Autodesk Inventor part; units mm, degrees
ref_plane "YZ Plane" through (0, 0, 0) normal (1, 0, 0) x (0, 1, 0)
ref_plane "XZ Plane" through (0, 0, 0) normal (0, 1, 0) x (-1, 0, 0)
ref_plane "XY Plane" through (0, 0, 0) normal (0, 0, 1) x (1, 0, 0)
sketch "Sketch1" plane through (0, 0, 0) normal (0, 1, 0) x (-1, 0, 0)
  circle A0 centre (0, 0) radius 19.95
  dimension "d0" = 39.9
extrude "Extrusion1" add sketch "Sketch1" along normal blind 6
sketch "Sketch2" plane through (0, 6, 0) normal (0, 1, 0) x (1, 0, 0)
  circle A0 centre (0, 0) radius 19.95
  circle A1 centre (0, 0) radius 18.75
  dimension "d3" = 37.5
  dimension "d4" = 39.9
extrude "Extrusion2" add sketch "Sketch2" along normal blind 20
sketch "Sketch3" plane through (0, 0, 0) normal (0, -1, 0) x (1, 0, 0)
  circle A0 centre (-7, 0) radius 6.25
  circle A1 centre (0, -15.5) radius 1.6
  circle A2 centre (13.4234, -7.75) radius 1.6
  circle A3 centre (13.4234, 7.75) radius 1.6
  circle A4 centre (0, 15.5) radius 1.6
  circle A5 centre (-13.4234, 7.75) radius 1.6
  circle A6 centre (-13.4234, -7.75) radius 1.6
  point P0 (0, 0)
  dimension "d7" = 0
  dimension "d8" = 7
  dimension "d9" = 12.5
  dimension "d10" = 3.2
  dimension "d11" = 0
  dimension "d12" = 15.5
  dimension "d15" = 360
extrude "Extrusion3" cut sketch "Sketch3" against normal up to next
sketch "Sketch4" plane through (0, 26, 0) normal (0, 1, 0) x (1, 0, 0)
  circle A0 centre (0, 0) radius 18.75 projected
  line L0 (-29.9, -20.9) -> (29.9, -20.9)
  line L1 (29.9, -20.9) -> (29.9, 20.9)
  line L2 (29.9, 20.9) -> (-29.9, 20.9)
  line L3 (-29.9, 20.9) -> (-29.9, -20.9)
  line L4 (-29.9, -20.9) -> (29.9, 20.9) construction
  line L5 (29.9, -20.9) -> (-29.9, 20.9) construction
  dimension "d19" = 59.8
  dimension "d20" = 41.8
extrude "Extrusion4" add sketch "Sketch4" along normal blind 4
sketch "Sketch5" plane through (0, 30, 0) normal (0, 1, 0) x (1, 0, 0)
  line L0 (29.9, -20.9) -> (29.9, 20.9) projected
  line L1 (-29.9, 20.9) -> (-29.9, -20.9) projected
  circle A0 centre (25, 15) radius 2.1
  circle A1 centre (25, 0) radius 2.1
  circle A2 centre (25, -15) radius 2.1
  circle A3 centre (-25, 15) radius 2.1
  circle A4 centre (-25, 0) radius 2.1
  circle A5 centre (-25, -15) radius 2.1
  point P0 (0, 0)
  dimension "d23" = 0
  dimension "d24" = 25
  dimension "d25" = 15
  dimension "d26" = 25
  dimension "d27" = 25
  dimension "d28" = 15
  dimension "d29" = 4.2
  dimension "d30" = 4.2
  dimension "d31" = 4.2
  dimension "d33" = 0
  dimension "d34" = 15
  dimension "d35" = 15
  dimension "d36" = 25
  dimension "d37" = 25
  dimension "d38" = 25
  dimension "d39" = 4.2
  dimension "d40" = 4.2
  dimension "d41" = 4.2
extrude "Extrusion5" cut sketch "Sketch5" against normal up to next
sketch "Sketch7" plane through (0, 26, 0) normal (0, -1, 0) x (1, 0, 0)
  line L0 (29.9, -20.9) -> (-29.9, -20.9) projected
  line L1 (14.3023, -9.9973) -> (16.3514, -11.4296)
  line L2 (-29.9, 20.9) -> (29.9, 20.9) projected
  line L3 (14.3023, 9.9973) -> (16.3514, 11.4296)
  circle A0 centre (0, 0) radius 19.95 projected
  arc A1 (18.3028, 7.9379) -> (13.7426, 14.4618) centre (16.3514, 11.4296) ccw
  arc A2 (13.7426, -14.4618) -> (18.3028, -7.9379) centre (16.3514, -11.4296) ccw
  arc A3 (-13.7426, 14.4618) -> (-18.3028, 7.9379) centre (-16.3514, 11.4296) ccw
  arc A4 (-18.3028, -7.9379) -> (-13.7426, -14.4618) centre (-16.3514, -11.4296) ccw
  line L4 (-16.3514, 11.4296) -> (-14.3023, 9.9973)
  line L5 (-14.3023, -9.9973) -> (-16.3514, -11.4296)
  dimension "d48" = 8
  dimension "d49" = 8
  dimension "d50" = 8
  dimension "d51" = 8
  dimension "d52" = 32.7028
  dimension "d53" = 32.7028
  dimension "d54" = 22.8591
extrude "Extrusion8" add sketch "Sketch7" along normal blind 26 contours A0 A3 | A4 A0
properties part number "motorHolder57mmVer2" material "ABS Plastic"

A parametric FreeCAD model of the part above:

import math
import FreeCAD as App
import Part
import Sketcher

doc = App.newDocument("Part")
params = doc.addObject("Spreadsheet::Sheet", "Params")
for row, (alias, value) in enumerate([
    ("sketch1_diameter", "39.9 mm"),
    ("pad1_length", "6 mm"),
    ("sketch2_diameter", "39.9 mm"),
    ("sketch2_diameter2", "37.5 mm"),
    ("pad2_length", "20 mm"),
    ("sketch3_diameter", "12.5 mm"),
    ("sketch3_diameter2", "3.2 mm"),
    ("sketch4_width", "59.8 mm"),
    ("sketch4_height", "41.8 mm"),
    ("sketch4_diameter", "37.5 mm"),
    ("pad3_length", "4 mm"),
    ("sketch5_diameter", "4.2 mm"),
    ("sketch6_radius", "4 mm"),
    ("sketch6_radius2", "19.95 mm"),
    ("pad4_length", "26 mm"),
], start=1):
    params.set(f"A{row}", alias)
    params.set(f"B{row}", "=" + value)
    params.setAlias(f"B{row}", alias)

body = doc.addObject("PartDesign::Body", "Body")

sketch1 = body.newObject("Sketcher::SketchObject", "Sketch")
sketch1.AttachmentSupport = (doc.getObject("XZ_Plane"), [""])
sketch1.MapMode = "FlatFace"
sketch1.addGeometry(Part.Circle(App.Vector(0, 0, 0), App.Vector(0, 0, 1), 20), False)
sketch1.addConstraint([
    Sketcher.Constraint("Coincident", 0, 3, -1, 1),
    Sketcher.Constraint("Diameter", 0, 39.9),
])
sketch1.setExpression("Constraints[1]", "Params.sketch1_diameter")
pad1 = body.newObject("PartDesign::Pad", "Pad")
pad1.Profile = sketch1
pad1.setExpression("Length", "Params.pad1_length")
pad1.Reversed = True

sketch2 = body.newObject("Sketcher::SketchObject", "Sketch001")
sketch2.AttachmentSupport = (doc.getObject("XZ_Plane"), [""])
sketch2.MapMode = "FlatFace"
sketch2.AttachmentOffset = App.Placement(App.Vector(0, 0, -6), App.Rotation())
sketch2.addGeometry([
    Part.Circle(App.Vector(0, 0, 0), App.Vector(0, 0, 1), 20),
    Part.Circle(App.Vector(0, 0, 0), App.Vector(0, 0, 1), 19),
], False)
sketch2.addConstraint([
    Sketcher.Constraint("Coincident", 0, 3, -1, 1),
    Sketcher.Constraint("Coincident", 1, 3, -1, 1),
    Sketcher.Constraint("Diameter", 0, 39.9),
    Sketcher.Constraint("Diameter", 1, 37.5),
])
sketch2.setExpression("Constraints[2]", "Params.sketch2_diameter")
sketch2.setExpression("Constraints[3]", "Params.sketch2_diameter2")
pad2 = body.newObject("PartDesign::Pad", "Pad001")
pad2.Profile = sketch2
pad2.setExpression("Length", "Params.pad2_length")
pad2.Reversed = True

sketch3 = body.newObject("Sketcher::SketchObject", "Sketch002")
sketch3.AttachmentSupport = (doc.getObject("XZ_Plane"), [""])
sketch3.MapMode = "FlatFace"
sketch3.addGeometry([
    Part.Circle(App.Vector(-7, 0, 0), App.Vector(0, 0, 1), 6.2),
    Part.Circle(App.Vector(0, -15.5, 0), App.Vector(0, 0, 1), 1.6),
    Part.Circle(App.Vector(13.4, -7.8, 0), App.Vector(0, 0, 1), 1.6),
    Part.Circle(App.Vector(13.4, 7.8, 0), App.Vector(0, 0, 1), 1.6),
    Part.Circle(App.Vector(0, 15.5, 0), App.Vector(0, 0, 1), 1.6),
    Part.Circle(App.Vector(-13.4, 7.8, 0), App.Vector(0, 0, 1), 1.6),
    Part.Circle(App.Vector(-13.4, -7.8, 0), App.Vector(0, 0, 1), 1.6),
], False)
sketch3.addConstraint([
    Sketcher.Constraint("Equal", 1, 2),
    Sketcher.Constraint("Equal", 2, 3),
    Sketcher.Constraint("Equal", 3, 4),
    Sketcher.Constraint("Equal", 4, 5),
    Sketcher.Constraint("Equal", 5, 6),
    Sketcher.Constraint("Symmetric", 1, 3, 4, 3, -1, 1),
    Sketcher.Constraint("Symmetric", 2, 3, 5, 3, -1, 1),
    Sketcher.Constraint("Symmetric", 3, 3, 6, 3, -1, 1),
    Sketcher.Constraint("Symmetric", 3, 3, 5, 3, -2),
    Sketcher.Constraint("PointOnObject", 0, 3, -1),
    Sketcher.Constraint("PointOnObject", 1, 3, -2),
    Sketcher.Constraint("Diameter", 0, 12.5),
    Sketcher.Constraint("Diameter", 1, 3.2),
    Sketcher.Constraint("DistanceX", 0, 3, -1, 1, 7.0),
    Sketcher.Constraint("DistanceY", 1, 3, -1, 1, 15.5),
    Sketcher.Constraint("DistanceY", 2, 3, 3, 3, 15.5),
    Sketcher.Constraint("DistanceX", -1, 1, 2, 3, 13.4234),
])
sketch3.setExpression("Constraints[11]", "Params.sketch3_diameter")
sketch3.setExpression("Constraints[12]", "Params.sketch3_diameter2")
pocket1 = body.newObject("PartDesign::Pocket", "Pocket")
pocket1.Profile = sketch3
pocket1.Type = "UpToFirst"

sketch4 = body.newObject("Sketcher::SketchObject", "Sketch003")
sketch4.AttachmentSupport = (doc.getObject("XZ_Plane"), [""])
sketch4.MapMode = "FlatFace"
sketch4.AttachmentOffset = App.Placement(App.Vector(0, 0, -26), App.Rotation())
sketch4.addGeometry([
    Part.LineSegment(App.Vector(-30, -21, 0), App.Vector(-30, 21, 0)),
    Part.LineSegment(App.Vector(-30, 21, 0), App.Vector(30, 21, 0)),
    Part.LineSegment(App.Vector(30, 21, 0), App.Vector(30, -21, 0)),
    Part.LineSegment(App.Vector(30, -21, 0), App.Vector(-30, -21, 0)),
    Part.Circle(App.Vector(0, 0, 0), App.Vector(0, 0, 1), 19),
], False)
sketch4.addConstraint([
    Sketcher.Constraint("Coincident", 0, 2, 1, 1),
    Sketcher.Constraint("Coincident", 1, 2, 2, 1),
    Sketcher.Constraint("Coincident", 2, 2, 3, 1),
    Sketcher.Constraint("Coincident", 3, 2, 0, 1),
    Sketcher.Constraint("Vertical", 0),
    Sketcher.Constraint("Horizontal", 1),
    Sketcher.Constraint("Vertical", 2),
    Sketcher.Constraint("Horizontal", 3),
    Sketcher.Constraint("Coincident", 4, 3, -1, 1),
    Sketcher.Constraint("Symmetric", 0, 2, 2, 2, -1, 1),
    Sketcher.Constraint("DistanceX", 1, 1, 1, 2, 59.8),
    Sketcher.Constraint("DistanceY", 0, 1, 0, 2, 41.8),
    Sketcher.Constraint("Diameter", 4, 37.5),
])
sketch4.setExpression("Constraints[10]", "Params.sketch4_width")
sketch4.setExpression("Constraints[11]", "Params.sketch4_height")
sketch4.setExpression("Constraints[12]", "Params.sketch4_diameter")
pad3 = body.newObject("PartDesign::Pad", "Pad002")
pad3.Profile = sketch4
pad3.setExpression("Length", "Params.pad3_length")
pad3.Reversed = True

sketch5 = body.newObject("Sketcher::SketchObject", "Sketch004")
sketch5.AttachmentSupport = (doc.getObject("XZ_Plane"), [""])
sketch5.MapMode = "FlatFace"
sketch5.AttachmentOffset = App.Placement(App.Vector(0, 0, -30), App.Rotation())
sketch5.addGeometry([
    Part.Circle(App.Vector(25, -15, 0), App.Vector(0, 0, 1), 2.1),
    Part.Circle(App.Vector(25, 0, 0), App.Vector(0, 0, 1), 2.1),
    Part.Circle(App.Vector(25, 15, 0), App.Vector(0, 0, 1), 2.1),
    Part.Circle(App.Vector(-25, -15, 0), App.Vector(0, 0, 1), 2.1),
    Part.Circle(App.Vector(-25, 0, 0), App.Vector(0, 0, 1), 2.1),
    Part.Circle(App.Vector(-25, 15, 0), App.Vector(0, 0, 1), 2.1),
], False)
sketch5.addConstraint([
    Sketcher.Constraint("Equal", 0, 1),
    Sketcher.Constraint("Equal", 1, 2),
    Sketcher.Constraint("Equal", 2, 3),
    Sketcher.Constraint("Equal", 3, 4),
    Sketcher.Constraint("Equal", 4, 5),
    Sketcher.Constraint("Symmetric", 2, 3, 3, 3, -1, 1),
    Sketcher.Constraint("Symmetric", 1, 3, 4, 3, -1, 1),
    Sketcher.Constraint("Symmetric", 0, 3, 5, 3, -1, 1),
    Sketcher.Constraint("Symmetric", 0, 3, 3, 3, -2),
    Sketcher.Constraint("PointOnObject", 1, 3, -1),
    Sketcher.Constraint("Vertical", 0, 3, 1, 3),
    Sketcher.Constraint("Diameter", 0, 4.2),
    Sketcher.Constraint("DistanceX", -1, 1, 0, 3, 25.0),
    Sketcher.Constraint("DistanceY", 0, 3, -1, 1, 15.0),
])
sketch5.setExpression("Constraints[11]", "Params.sketch5_diameter")
pocket2 = body.newObject("PartDesign::Pocket", "Pocket001")
pocket2.Profile = sketch5
pocket2.Type = "UpToFirst"
pocket2.Reversed = True

sketch6 = body.newObject("Sketcher::SketchObject", "Sketch005")
sketch6.AttachmentSupport = (doc.getObject("XZ_Plane"), [""])
sketch6.MapMode = "FlatFace"
sketch6.AttachmentOffset = App.Placement(App.Vector(0, 0, -26), App.Rotation())
sketch6.addGeometry([
    Part.ArcOfCircle(Part.Circle(App.Vector(0, 0, 0), App.Vector(0, 0, 1), 19.9), math.radians(134), math.radians(157)),
    Part.ArcOfCircle(Part.Circle(App.Vector(-16.4, 11.4, 0), App.Vector(0, 0, 1), 4), math.radians(49), math.radians(241)),
    Part.ArcOfCircle(Part.Circle(App.Vector(-16.4, -11.4, 0), App.Vector(0, 0, 1), 4), math.radians(119), math.radians(311)),
    Part.ArcOfCircle(Part.Circle(App.Vector(0, 0, 0), App.Vector(0, 0, 1), 19.9), math.radians(-157), math.radians(-134)),
], False)
sketch6.addConstraint([
    Sketcher.Constraint("Coincident", 0, 1, 1, 1),
    Sketcher.Constraint("Coincident", 1, 2, 0, 2),
    Sketcher.Constraint("Coincident", 2, 1, 3, 1),
    Sketcher.Constraint("Coincident", 3, 2, 2, 2),
    Sketcher.Constraint("Coincident", 0, 3, -1, 1),
    Sketcher.Constraint("Coincident", 3, 3, -1, 1),
    Sketcher.Constraint("Equal", 1, 2),
    Sketcher.Constraint("Equal", 0, 3),
    Sketcher.Constraint("Symmetric", 1, 3, 2, 3, -1),
    Sketcher.Constraint("Radius", 1, 4.0),
    Sketcher.Constraint("Radius", 0, 19.95),
    Sketcher.Constraint("DistanceY", 2, 3, 1, 3, 22.8592),
    Sketcher.Constraint("DistanceY", -1, 1, 1, 2, 7.938),
])
sketch6.setExpression("Constraints[9]", "Params.sketch6_radius")
sketch6.setExpression("Constraints[10]", "Params.sketch6_radius2")
pad4 = body.newObject("PartDesign::Pad", "Pad003")
pad4.Profile = sketch6
pad4.setExpression("Length", "Params.pad4_length")

doc.recompute()
